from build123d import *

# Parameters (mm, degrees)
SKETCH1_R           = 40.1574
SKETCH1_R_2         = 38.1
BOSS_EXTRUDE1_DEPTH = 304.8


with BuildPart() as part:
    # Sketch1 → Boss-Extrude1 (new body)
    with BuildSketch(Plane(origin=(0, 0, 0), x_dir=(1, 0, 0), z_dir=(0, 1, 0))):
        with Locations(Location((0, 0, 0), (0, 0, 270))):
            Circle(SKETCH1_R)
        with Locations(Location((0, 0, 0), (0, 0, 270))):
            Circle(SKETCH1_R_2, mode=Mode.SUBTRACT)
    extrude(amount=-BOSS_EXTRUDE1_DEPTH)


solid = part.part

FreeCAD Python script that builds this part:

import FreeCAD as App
import Part
import Sketcher
from FreeCAD import Vector
Q = App.Units.Quantity

doc = App.newDocument("Part")
params = doc.addObject("Spreadsheet::Sheet", "Params")
for row, (alias, value) in enumerate([
    ("sketch1_diameter", "3 in"),
    ("sketch1_diameter2", "3.162 in"),
    ("pad1_length", "12 in"),
], start=1):
    params.set(f"A{row}", alias)
    params.set(f"B{row}", "=" + value)
    params.setAlias(f"B{row}", alias)

body = doc.addObject("PartDesign::Body", "Body")

# Sketch on XZ plane
sketch1 = doc.addObject("Sketcher::SketchObject", "Sketch")
body.addObject(sketch1)
sketch1.AttachmentSupport = (doc.XZ_Plane, [""])
sketch1.MapMode = "FlatFace"
sketch1.addGeometry([
    Part.Circle(Vector(0, 0, 0), Vector(0, 0, 1), 40),
    Part.Circle(Vector(0, 0, 0), Vector(0, 0, 1), 38),
], False)
sketch1.addConstraint([
    Sketcher.Constraint("Coincident", 0, 3, -1, 1),
    Sketcher.Constraint("Coincident", 1, 3, -1, 1),
    Sketcher.Constraint("Diameter", 1, Q("3 in")),
    Sketcher.Constraint("Diameter", 0, Q("3.162 in")),
])
sketch1.setExpression("Constraints[2]", "Params.sketch1_diameter")
sketch1.setExpression("Constraints[3]", "Params.sketch1_diameter2")
pad1 = doc.addObject("PartDesign::Pad", "Pad")
body.addObject(pad1)
pad1.Profile = sketch1
pad1.setExpression("Length", "Params.pad1_length")

doc.recompute()
